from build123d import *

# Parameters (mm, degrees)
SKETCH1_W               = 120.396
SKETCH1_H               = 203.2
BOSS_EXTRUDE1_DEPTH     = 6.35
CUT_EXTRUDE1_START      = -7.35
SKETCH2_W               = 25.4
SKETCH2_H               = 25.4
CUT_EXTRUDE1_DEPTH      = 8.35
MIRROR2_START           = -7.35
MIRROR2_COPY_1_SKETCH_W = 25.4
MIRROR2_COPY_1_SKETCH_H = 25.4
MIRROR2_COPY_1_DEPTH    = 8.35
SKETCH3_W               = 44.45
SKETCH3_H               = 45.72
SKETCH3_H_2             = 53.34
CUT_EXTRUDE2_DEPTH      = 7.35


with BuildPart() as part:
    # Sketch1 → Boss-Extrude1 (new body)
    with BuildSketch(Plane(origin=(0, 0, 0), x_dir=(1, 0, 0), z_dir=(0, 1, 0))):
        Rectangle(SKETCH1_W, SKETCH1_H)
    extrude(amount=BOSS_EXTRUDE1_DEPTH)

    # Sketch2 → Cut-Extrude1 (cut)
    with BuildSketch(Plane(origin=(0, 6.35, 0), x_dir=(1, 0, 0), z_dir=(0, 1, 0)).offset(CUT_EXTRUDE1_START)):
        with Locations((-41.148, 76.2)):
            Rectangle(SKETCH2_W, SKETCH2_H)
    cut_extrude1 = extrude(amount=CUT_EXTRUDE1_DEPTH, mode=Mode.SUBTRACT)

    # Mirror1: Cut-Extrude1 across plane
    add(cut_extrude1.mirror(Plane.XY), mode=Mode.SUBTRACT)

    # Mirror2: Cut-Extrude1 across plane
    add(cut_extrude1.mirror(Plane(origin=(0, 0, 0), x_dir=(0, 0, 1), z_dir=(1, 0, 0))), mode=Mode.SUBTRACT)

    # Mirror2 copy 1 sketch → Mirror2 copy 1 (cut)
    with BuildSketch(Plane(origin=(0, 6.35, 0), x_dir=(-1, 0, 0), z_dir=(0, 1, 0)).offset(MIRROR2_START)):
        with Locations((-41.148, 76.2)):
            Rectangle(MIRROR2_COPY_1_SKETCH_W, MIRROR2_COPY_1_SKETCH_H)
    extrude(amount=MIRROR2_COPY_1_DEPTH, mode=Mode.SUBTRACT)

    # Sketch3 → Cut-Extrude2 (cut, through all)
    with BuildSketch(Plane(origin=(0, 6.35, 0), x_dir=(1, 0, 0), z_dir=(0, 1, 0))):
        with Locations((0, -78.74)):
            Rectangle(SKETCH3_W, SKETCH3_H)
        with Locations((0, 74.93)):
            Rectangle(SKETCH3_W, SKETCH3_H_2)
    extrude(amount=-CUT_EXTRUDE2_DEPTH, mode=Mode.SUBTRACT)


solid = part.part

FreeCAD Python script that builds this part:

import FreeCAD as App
import Part
import Sketcher
Q = App.Units.Quantity

doc = App.newDocument("Part")
params = doc.addObject("Spreadsheet::Sheet", "Params")
for row, (alias, value) in enumerate([
    ("sketch1_height", "8 in"),
    ("sketch1_width", "4.74 in"),
    ("pad1_length", "0.25 in"),
    ("sketch2_width", "1 in"),
    ("pocket1_length", "8.35 mm"),
    ("sketch3_width", "1 in"),
    ("pocket2_length", "8.35 mm"),
    ("sketch4_height", "1.8 in"),
    ("sketch4_height2", "2.1 in"),
    ("sketch4_width", "1.75 in"),
], start=1):
    params.set(f"A{row}", alias)
    params.set(f"B{row}", "=" + value)
    params.setAlias(f"B{row}", alias)

body = doc.addObject("PartDesign::Body", "Body")

sketch1 = body.newObject("Sketcher::SketchObject", "Sketch")
sketch1.AttachmentSupport = (doc.getObject("XZ_Plane"), [""])
sketch1.MapMode = "FlatFace"
sketch1.addGeometry([
    Part.LineSegment(App.Vector(-60, -102, 0), App.Vector(-60, 102, 0)),
    Part.LineSegment(App.Vector(-60, 102, 0), App.Vector(60, 102, 0)),
    Part.LineSegment(App.Vector(60, 102, 0), App.Vector(60, -102, 0)),
    Part.LineSegment(App.Vector(60, -102, 0), App.Vector(-60, -102, 0)),
], False)
sketch1.addConstraint([
    Sketcher.Constraint("Coincident", 0, 2, 1, 1),
    Sketcher.Constraint("Coincident", 1, 2, 2, 1),
    Sketcher.Constraint("Coincident", 2, 2, 3, 1),
    Sketcher.Constraint("Coincident", 3, 2, 0, 1),
    Sketcher.Constraint("Vertical", 0),
    Sketcher.Constraint("Horizontal", 1),
    Sketcher.Constraint("Vertical", 2),
    Sketcher.Constraint("Horizontal", 3),
    Sketcher.Constraint("Symmetric", 0, 2, 2, 2, -1, 1),
    Sketcher.Constraint("DistanceY", 0, 1, 0, 2, Q("8 in")),
    Sketcher.Constraint("DistanceX", 1, 1, 1, 2, Q("4.74 in")),
])
sketch1.setExpression("Constraints[9]", "Params.sketch1_height")
sketch1.setExpression("Constraints[10]", "Params.sketch1_width")
pad1 = body.newObject("PartDesign::Pad", "Pad")
pad1.Profile = sketch1
pad1.setExpression("Length", "Params.pad1_length")
pad1.Reversed = True

sketch2 = body.newObject("Sketcher::SketchObject", "Sketch001")
sketch2.AttachmentSupport = (doc.getObject("XZ_Plane"), [""])
sketch2.MapMode = "FlatFace"
sketch2.AttachmentOffset = App.Placement(App.Vector(0, 0, 1), App.Rotation())
sketch2.addGeometry([
    Part.LineSegment(App.Vector(-54, -89, 0), App.Vector(-54, -64, 0)),
    Part.LineSegment(App.Vector(-54, -64, 0), App.Vector(-28, -64, 0)),
    Part.LineSegment(App.Vector(-28, -64, 0), App.Vector(-28, -89, 0)),
    Part.LineSegment(App.Vector(-28, -89, 0), App.Vector(-54, -89, 0)),
], False)
sketch2.addConstraint([
    Sketcher.Constraint("Coincident", 0, 2, 1, 1),
    Sketcher.Constraint("Coincident", 1, 2, 2, 1),
    Sketcher.Constraint("Coincident", 2, 2, 3, 1),
    Sketcher.Constraint("Coincident", 3, 2, 0, 1),
    Sketcher.Constraint("Vertical", 0),
    Sketcher.Constraint("Horizontal", 1),
    Sketcher.Constraint("Vertical", 2),
    Sketcher.Constraint("Horizontal", 3),
    Sketcher.Constraint("Equal", 3, 0),
    Sketcher.Constraint("DistanceX", 1, 1, 1, 2, Q("1 in")),
    Sketcher.Constraint("DistanceY", 0, 2, -1, 1, Q("2.5 in")),
    Sketcher.Constraint("DistanceX", 0, 2, -1, 1, Q("2.12 in")),
])
sketch2.setExpression("Constraints[9]", "Params.sketch2_width")
pocket1 = body.newObject("PartDesign::Pocket", "Pocket")
pocket1.Profile = sketch2
pocket1.setExpression("Length", "Params.pocket1_length")
doc.recompute()

mirrored = body.newObject("PartDesign::Mirrored", "Mirrored")
mirrored.Originals = [pocket1]
mirrored.MirrorPlane = (doc.getObject("XY_Plane"), [""])
body.Tip = mirrored
doc.recompute()

mirrored2 = body.newObject("PartDesign::Mirrored", "Mirrored001")
mirrored2.Originals = [pocket1]
mirrored2.MirrorPlane = (doc.getObject("YZ_Plane"), [""])
body.Tip = mirrored2

sketch3 = body.newObject("Sketcher::SketchObject", "Sketch002")
sketch3.AttachmentSupport = (doc.getObject("XZ_Plane"), [""])
sketch3.MapMode = "FlatFace"
sketch3.AttachmentOffset = App.Placement(App.Vector(0, 0, 1), App.Rotation())
sketch3.addGeometry([
    Part.LineSegment(App.Vector(54, 89, 0), App.Vector(54, 64, 0)),
    Part.LineSegment(App.Vector(54, 64, 0), App.Vector(28, 64, 0)),
    Part.LineSegment(App.Vector(28, 64, 0), App.Vector(28, 89, 0)),
    Part.LineSegment(App.Vector(28, 89, 0), App.Vector(54, 89, 0)),
], False)
sketch3.addConstraint([
    Sketcher.Constraint("Coincident", 0, 2, 1, 1),
    Sketcher.Constraint("Coincident", 1, 2, 2, 1),
    Sketcher.Constraint("Coincident", 2, 2, 3, 1),
    Sketcher.Constraint("Coincident", 3, 2, 0, 1),
    Sketcher.Constraint("Vertical", 0),
    Sketcher.Constraint("Horizontal", 1),
    Sketcher.Constraint("Vertical", 2),
    Sketcher.Constraint("Horizontal", 3),
    Sketcher.Constraint("Equal", 3, 0),
    Sketcher.Constraint("DistanceX", 1, 2, 1, 1, Q("1 in")),
    Sketcher.Constraint("DistanceY", -1, 1, 0, 2, Q("2.5 in")),
    Sketcher.Constraint("DistanceX", -1, 1, 0, 2, Q("2.12 in")),
])
sketch3.setExpression("Constraints[9]", "Params.sketch3_width")
pocket2 = body.newObject("PartDesign::Pocket", "Pocket001")
pocket2.Profile = sketch3
pocket2.setExpression("Length", "Params.pocket2_length")

sketch4 = body.newObject("Sketcher::SketchObject", "Sketch003")
sketch4.AttachmentSupport = (doc.getObject("XZ_Plane"), [""])
sketch4.MapMode = "FlatFace"
sketch4.AttachmentOffset = App.Placement(App.Vector(0, 0, -0.25 * 25.4), App.Rotation())
sketch4.addGeometry([
    Part.LineSegment(App.Vector(-22, 56, 0), App.Vector(-22, 102, 0)),
    Part.LineSegment(App.Vector(-22, 102, 0), App.Vector(22, 102, 0)),
    Part.LineSegment(App.Vector(22, 102, 0), App.Vector(22, 56, 0)),
    Part.LineSegment(App.Vector(22, 56, 0), App.Vector(-22, 56, 0)),
    Part.LineSegment(App.Vector(-22, -102, 0), App.Vector(-22, -48, 0)),
    Part.LineSegment(App.Vector(-22, -48, 0), App.Vector(22, -48, 0)),
    Part.LineSegment(App.Vector(22, -48, 0), App.Vector(22, -102, 0)),
    Part.LineSegment(App.Vector(22, -102, 0), App.Vector(-22, -102, 0)),
], False)
sketch4.addConstraint([
    Sketcher.Constraint("Coincident", 0, 2, 1, 1),
    Sketcher.Constraint("Coincident", 1, 2, 2, 1),
    Sketcher.Constraint("Coincident", 2, 2, 3, 1),
    Sketcher.Constraint("Coincident", 3, 2, 0, 1),
    Sketcher.Constraint("Coincident", 4, 2, 5, 1),
    Sketcher.Constraint("Coincident", 5, 2, 6, 1),
    Sketcher.Constraint("Coincident", 6, 2, 7, 1),
    Sketcher.Constraint("Coincident", 7, 2, 4, 1),
    Sketcher.Constraint("Vertical", 0),
    Sketcher.Constraint("Horizontal", 1),
    Sketcher.Constraint("Vertical", 2),
    Sketcher.Constraint("Horizontal", 3),
    Sketcher.Constraint("Vertical", 4),
    Sketcher.Constraint("Horizontal", 5),
    Sketcher.Constraint("Vertical", 6),
    Sketcher.Constraint("Horizontal", 7),
    Sketcher.Constraint("Symmetric", 0, 2, 6, 2, -1, 1),
    Sketcher.Constraint("Vertical", 3, 2, 4, 2),
    Sketcher.Constraint("Vertical", 2, 2, 5, 2),
    Sketcher.Constraint("DistanceY", 0, 1, 0, 2, Q("1.8 in")),
    Sketcher.Constraint("DistanceY", 4, 1, 4, 2, Q("2.1 in")),
    Sketcher.Constraint("DistanceY", -1, 1, 0, 2, Q("4 in")),
    Sketcher.Constraint("DistanceX", 1, 1, 1, 2, Q("1.75 in")),
])
sketch4.setExpression("Constraints[19]", "Params.sketch4_height")
sketch4.setExpression("Constraints[20]", "Params.sketch4_height2")
sketch4.setExpression("Constraints[22]", "Params.sketch4_width")
pocket3 = body.newObject("PartDesign::Pocket", "Pocket002")
pocket3.Profile = sketch4
pocket3.Type = "ThroughAll"
pocket3.Reversed = True

doc.recompute()
